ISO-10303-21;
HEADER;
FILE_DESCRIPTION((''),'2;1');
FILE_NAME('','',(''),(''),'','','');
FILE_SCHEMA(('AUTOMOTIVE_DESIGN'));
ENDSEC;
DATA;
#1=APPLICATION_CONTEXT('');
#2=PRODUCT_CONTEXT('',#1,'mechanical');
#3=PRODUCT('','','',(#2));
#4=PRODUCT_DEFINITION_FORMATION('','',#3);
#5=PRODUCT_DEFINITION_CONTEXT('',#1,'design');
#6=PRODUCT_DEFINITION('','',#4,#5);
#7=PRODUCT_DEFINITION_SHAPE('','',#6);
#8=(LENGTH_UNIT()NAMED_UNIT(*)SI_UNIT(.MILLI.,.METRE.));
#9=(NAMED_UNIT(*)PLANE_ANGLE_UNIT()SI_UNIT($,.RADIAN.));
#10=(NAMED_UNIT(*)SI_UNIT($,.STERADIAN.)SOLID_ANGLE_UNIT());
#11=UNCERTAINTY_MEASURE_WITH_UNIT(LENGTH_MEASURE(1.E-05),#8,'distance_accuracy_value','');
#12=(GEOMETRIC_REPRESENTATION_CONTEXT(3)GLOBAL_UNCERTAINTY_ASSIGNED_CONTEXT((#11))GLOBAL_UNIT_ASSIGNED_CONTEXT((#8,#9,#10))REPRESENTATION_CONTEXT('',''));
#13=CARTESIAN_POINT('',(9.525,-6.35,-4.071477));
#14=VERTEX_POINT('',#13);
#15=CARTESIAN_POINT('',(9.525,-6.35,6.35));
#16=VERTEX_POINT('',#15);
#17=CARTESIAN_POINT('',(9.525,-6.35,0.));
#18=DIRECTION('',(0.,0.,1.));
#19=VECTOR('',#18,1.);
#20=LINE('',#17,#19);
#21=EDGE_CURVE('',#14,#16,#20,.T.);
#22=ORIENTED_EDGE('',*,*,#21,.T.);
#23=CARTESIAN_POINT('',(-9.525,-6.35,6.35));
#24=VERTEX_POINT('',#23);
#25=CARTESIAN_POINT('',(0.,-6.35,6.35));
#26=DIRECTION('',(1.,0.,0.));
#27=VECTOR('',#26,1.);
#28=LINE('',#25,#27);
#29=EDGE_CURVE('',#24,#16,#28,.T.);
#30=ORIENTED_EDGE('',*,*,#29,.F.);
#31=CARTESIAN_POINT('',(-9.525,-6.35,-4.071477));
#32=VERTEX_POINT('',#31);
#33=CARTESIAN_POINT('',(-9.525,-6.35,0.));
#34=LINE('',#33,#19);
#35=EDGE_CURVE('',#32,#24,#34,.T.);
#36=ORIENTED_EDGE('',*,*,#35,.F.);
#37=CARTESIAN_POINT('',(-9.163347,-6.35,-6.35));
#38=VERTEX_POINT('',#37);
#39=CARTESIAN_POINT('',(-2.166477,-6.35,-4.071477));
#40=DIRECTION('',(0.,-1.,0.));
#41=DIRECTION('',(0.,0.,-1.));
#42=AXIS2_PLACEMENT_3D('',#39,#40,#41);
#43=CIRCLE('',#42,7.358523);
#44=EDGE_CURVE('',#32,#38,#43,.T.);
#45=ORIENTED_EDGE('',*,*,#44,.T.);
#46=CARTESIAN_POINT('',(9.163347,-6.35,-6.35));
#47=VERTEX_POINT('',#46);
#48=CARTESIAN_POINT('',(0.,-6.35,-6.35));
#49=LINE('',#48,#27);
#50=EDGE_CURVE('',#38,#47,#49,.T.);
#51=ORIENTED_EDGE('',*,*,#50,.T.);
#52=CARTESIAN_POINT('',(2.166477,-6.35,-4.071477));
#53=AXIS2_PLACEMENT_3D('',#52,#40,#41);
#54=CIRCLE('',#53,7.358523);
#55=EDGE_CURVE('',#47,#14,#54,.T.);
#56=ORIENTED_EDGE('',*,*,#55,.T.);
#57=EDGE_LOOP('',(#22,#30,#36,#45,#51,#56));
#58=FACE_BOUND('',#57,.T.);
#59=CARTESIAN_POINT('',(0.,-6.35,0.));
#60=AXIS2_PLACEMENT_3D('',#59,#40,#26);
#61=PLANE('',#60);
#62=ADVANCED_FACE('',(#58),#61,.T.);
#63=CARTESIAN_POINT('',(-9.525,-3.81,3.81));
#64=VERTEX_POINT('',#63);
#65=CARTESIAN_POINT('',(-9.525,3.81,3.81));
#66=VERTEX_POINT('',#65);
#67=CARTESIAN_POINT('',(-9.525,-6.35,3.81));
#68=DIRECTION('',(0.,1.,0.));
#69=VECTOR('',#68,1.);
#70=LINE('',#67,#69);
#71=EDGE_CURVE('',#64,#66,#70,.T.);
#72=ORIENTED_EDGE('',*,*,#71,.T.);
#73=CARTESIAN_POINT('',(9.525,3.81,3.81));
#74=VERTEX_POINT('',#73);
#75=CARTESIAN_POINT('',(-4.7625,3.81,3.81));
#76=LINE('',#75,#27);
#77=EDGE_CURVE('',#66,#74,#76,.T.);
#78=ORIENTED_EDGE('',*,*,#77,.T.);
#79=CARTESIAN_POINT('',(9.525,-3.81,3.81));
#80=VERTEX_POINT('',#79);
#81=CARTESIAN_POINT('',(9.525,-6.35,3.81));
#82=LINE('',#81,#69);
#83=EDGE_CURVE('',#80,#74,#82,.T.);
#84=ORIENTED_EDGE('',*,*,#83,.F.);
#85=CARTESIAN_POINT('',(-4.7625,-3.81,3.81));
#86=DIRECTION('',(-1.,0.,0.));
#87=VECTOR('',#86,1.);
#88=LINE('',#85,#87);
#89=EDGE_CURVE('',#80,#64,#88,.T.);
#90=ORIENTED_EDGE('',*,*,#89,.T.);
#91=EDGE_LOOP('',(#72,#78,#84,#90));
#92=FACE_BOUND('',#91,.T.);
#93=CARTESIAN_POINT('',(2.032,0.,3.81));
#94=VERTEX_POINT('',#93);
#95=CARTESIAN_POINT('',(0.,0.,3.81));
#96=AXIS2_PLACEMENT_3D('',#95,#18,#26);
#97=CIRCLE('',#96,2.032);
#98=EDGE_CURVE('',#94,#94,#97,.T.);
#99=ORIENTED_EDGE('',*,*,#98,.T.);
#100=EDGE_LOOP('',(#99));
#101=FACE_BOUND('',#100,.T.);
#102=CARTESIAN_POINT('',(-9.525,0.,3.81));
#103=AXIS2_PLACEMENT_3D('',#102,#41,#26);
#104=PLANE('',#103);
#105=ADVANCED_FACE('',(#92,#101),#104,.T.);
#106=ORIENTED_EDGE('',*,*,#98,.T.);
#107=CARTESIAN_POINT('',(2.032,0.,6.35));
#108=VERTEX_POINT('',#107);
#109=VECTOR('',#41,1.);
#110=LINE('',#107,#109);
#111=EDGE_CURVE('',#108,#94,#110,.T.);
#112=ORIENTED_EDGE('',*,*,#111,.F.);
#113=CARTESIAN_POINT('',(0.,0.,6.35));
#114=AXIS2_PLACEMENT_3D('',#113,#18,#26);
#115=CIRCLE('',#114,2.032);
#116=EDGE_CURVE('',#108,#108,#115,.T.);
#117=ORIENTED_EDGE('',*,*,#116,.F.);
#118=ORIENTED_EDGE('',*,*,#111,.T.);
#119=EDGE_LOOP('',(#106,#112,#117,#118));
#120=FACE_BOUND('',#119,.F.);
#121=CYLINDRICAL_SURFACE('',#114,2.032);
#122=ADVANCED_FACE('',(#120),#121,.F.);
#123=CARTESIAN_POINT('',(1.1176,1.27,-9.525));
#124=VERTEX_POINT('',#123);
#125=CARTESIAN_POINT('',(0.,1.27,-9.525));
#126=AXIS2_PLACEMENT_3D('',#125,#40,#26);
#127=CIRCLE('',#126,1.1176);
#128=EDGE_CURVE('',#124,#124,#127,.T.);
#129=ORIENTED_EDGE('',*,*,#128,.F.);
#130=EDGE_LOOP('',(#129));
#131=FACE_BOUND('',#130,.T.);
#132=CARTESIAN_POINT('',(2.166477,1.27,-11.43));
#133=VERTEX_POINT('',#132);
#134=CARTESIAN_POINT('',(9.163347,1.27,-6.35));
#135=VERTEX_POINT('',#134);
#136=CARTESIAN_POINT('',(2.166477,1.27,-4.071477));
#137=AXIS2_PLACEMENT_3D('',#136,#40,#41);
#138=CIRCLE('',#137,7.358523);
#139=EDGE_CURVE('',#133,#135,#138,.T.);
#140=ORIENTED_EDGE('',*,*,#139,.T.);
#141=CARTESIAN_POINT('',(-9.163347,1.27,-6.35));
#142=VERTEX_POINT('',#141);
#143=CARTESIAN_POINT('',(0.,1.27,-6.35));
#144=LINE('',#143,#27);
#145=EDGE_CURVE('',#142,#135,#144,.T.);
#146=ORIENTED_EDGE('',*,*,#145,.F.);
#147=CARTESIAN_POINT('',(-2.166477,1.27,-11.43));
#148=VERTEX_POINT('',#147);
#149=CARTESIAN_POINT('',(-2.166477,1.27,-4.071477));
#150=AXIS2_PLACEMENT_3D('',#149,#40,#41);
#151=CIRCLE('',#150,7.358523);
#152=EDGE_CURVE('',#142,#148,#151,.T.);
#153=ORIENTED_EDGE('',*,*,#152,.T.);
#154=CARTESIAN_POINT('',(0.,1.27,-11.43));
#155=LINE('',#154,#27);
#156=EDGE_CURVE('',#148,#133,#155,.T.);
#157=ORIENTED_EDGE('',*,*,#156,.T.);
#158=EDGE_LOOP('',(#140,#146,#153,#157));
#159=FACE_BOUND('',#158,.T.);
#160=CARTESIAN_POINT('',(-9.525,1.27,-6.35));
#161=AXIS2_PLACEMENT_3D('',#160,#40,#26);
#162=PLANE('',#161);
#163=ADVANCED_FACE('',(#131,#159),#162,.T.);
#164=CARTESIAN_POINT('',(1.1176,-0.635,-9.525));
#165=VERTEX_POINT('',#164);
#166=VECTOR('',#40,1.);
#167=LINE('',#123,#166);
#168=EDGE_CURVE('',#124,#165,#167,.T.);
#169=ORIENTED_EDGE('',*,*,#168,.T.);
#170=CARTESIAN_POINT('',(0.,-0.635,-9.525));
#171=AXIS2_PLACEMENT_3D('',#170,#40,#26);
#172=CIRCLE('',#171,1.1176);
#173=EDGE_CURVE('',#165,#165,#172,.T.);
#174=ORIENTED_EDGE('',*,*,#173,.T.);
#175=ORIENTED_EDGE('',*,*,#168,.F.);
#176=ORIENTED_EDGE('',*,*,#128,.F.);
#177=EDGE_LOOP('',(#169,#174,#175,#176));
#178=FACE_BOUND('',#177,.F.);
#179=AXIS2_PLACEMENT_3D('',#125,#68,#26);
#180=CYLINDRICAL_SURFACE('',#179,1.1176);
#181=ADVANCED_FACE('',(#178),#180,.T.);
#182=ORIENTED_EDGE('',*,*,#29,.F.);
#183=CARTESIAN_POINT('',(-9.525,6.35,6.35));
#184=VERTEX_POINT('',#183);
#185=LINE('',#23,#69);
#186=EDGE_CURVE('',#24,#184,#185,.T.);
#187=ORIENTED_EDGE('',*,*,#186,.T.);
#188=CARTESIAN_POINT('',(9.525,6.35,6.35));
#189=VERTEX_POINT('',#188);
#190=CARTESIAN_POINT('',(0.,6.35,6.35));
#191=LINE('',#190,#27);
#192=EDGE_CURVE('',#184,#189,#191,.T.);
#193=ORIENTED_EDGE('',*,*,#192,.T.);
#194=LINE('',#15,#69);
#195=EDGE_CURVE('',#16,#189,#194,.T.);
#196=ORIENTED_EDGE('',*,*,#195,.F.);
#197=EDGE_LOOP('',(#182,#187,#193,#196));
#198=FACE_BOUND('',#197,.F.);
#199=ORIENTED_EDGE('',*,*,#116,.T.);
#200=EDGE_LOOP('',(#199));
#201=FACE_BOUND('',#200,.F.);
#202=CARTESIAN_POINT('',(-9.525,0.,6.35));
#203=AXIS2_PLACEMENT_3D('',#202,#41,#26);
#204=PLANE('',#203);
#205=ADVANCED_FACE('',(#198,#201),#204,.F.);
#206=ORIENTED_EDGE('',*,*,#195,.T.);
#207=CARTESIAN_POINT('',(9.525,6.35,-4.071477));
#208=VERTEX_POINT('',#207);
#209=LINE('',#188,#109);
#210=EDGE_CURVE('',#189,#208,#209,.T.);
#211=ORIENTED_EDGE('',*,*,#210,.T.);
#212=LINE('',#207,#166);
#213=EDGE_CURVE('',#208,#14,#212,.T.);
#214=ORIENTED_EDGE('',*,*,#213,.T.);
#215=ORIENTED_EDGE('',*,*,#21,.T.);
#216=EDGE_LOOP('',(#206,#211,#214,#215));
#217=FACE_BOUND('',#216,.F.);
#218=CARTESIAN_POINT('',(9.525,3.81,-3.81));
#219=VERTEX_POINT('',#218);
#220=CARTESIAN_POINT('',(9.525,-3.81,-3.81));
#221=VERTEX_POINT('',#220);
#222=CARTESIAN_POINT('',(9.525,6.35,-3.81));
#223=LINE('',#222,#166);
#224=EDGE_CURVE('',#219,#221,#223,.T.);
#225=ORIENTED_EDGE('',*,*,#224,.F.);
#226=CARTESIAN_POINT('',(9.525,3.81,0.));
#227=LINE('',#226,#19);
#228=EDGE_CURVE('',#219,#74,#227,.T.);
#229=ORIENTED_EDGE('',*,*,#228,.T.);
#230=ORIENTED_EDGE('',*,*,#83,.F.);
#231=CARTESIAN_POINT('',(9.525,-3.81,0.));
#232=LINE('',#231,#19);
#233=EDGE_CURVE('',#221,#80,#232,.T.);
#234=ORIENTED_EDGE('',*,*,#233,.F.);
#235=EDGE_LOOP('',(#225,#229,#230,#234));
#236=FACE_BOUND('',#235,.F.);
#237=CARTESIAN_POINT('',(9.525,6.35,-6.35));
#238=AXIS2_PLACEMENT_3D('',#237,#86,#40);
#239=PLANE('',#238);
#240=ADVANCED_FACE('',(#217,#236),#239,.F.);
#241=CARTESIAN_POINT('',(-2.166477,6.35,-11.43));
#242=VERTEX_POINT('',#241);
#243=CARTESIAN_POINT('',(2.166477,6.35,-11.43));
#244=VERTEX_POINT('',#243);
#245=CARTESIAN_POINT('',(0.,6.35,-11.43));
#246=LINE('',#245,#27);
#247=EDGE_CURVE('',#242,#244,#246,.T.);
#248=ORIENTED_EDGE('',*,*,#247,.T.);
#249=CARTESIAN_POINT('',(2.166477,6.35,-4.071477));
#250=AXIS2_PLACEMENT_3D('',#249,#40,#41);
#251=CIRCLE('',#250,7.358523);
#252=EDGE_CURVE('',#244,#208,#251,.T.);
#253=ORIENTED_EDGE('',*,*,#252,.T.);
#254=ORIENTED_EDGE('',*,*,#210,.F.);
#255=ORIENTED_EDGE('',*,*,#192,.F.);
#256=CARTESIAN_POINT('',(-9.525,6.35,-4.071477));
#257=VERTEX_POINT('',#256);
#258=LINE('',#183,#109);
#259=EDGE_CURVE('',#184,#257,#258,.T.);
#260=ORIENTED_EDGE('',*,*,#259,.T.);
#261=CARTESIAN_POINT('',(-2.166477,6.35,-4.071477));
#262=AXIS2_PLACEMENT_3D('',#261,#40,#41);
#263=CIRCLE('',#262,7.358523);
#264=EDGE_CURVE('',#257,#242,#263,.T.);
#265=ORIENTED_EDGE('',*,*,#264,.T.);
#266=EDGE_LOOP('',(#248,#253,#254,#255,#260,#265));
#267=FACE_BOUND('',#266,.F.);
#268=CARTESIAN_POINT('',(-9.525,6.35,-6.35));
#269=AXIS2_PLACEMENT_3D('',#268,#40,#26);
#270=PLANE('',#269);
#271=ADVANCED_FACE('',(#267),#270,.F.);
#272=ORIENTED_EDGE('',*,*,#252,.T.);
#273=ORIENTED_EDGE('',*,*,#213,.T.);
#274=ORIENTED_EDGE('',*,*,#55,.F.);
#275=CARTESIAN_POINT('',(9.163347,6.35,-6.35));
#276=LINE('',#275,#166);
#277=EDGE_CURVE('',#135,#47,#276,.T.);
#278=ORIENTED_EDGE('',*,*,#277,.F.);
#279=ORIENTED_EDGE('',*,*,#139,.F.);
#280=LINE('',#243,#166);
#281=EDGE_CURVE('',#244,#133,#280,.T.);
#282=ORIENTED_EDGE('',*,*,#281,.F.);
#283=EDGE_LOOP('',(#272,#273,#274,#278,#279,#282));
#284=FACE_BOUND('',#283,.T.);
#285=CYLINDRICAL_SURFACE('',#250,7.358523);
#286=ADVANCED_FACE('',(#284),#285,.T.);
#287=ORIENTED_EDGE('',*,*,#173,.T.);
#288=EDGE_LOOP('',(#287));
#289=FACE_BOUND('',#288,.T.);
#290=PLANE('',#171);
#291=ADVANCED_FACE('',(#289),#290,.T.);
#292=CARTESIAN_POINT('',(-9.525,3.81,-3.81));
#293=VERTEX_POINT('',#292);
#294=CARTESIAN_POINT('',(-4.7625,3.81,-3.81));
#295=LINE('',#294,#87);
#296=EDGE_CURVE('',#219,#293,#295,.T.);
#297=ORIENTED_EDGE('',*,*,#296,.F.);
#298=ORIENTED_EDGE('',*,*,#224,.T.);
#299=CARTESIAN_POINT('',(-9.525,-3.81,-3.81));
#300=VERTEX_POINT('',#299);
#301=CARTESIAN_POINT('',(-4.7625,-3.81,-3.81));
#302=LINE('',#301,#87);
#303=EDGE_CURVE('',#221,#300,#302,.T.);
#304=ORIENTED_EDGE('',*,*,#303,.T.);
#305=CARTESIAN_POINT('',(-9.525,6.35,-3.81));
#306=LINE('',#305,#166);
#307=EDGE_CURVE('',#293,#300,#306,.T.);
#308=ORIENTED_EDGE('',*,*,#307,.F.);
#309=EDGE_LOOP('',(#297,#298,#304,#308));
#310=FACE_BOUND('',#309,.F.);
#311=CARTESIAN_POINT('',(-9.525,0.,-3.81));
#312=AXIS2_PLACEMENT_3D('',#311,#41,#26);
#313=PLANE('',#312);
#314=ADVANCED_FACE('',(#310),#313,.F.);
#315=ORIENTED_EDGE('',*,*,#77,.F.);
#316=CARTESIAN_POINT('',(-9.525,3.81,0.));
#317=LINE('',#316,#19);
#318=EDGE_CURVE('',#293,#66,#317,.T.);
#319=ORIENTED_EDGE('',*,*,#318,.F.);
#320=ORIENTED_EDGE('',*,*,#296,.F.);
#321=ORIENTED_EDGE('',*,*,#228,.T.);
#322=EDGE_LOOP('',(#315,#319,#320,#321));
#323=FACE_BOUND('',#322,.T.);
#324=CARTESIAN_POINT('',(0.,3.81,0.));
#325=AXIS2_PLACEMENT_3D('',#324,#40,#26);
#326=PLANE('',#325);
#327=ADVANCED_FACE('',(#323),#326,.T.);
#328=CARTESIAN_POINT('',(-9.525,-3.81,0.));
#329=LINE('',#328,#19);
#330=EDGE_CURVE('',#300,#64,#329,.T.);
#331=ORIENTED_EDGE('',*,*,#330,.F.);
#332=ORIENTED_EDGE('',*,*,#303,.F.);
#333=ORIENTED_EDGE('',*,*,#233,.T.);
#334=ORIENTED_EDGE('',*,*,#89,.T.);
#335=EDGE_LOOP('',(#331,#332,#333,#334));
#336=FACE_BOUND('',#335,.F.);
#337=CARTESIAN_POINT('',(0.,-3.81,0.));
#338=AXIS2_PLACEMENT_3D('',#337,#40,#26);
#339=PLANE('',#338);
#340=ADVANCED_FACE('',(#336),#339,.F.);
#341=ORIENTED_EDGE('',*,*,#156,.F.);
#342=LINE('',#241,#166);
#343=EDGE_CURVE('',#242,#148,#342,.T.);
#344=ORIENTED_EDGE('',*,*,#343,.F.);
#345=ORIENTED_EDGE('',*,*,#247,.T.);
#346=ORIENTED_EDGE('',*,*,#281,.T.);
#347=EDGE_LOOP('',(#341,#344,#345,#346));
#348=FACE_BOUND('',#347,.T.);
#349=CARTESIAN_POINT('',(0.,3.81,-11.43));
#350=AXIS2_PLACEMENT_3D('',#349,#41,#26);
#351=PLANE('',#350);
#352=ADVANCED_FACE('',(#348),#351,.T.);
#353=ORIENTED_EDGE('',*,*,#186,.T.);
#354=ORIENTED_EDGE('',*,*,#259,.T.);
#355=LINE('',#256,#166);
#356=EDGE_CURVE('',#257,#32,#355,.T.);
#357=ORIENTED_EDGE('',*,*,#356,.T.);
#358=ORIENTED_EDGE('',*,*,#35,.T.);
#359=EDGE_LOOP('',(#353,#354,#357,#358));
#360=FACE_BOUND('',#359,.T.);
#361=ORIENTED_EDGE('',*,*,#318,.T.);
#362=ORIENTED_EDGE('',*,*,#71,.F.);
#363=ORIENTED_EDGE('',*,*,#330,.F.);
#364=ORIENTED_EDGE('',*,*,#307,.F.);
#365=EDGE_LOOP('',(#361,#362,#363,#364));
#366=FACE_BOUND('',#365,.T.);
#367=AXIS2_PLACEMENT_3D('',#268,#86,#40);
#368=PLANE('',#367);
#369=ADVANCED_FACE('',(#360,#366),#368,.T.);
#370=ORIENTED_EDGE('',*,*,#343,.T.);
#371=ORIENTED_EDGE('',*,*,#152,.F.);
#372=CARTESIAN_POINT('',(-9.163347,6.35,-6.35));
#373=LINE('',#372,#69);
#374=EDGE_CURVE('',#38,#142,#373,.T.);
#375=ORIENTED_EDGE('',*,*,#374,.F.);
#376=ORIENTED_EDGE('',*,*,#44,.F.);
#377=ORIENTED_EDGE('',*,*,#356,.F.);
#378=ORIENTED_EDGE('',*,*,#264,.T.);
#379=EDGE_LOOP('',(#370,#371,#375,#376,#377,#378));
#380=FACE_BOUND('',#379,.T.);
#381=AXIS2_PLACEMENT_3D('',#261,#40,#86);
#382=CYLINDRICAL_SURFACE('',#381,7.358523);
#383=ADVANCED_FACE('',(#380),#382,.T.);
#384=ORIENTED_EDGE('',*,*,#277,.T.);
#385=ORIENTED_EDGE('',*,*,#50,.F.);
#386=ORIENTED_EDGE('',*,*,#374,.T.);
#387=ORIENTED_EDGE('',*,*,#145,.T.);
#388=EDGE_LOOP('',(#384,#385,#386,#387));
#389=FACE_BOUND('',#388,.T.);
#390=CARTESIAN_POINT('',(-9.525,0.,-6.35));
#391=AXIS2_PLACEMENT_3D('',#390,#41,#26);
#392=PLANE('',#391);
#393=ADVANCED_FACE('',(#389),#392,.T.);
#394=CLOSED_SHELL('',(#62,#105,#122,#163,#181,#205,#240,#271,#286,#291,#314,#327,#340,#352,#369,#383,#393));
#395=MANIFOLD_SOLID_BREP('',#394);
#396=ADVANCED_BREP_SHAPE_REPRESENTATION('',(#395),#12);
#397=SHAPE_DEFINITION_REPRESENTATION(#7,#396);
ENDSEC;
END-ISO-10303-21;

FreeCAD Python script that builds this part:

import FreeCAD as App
import Part
import Sketcher

V = App.Vector
Q = App.Units.Quantity


def edges_at(feature, points):
    """Names of the edges that pass closest to the given points."""
    edges = feature.Shape.Edges
    near = lambda p: min(range(len(edges)), key=lambda i: edges[i].distToShape(Part.Vertex(*p))[0])
    return sorted({f"Edge{near(p) + 1}" for p in points})


def faces_at(feature, points):
    """Names of the faces that lie closest to the given points."""
    faces = feature.Shape.Faces
    near = lambda p: min(range(len(faces)), key=lambda i: faces[i].distToShape(Part.Vertex(*p))[0])
    return sorted({f"Face{near(p) + 1}" for p in points})


def add_polygon(sketch, points):
    """Adds a closed chain of lines whose ends are joined by coincident constraints."""
    first, n = sketch.GeometryCount, len(points)
    for a, b in zip(points, points[1:] + points[:1]):
        sketch.addGeometry(Part.LineSegment(App.Vector(*a, 0), App.Vector(*b, 0)), False)
    for i in range(n):
        sketch.addConstraint(Sketcher.Constraint("Coincident", first + i, 2, first + (i + 1) % n, 1))

doc = App.newDocument("Part")
body = doc.addObject("PartDesign::Body", "Body")

# Sketch on XZ plane
sketch1 = body.newObject("Sketcher::SketchObject", "Sketch")
sketch1.AttachmentSupport = (doc.getObject("XZ_Plane"), [""])
sketch1.MapMode = "FlatFace"
add_polygon(sketch1, [(-9.525, 6.35), (-9.525, -6.35), (9.525, -6.35), (9.525, 6.35)])  # lines 0-3
sketch1.addConstraint([
    Sketcher.Constraint("Vertical", 0),
    Sketcher.Constraint("Horizontal", 1),
    Sketcher.Constraint("Vertical", 2),
    Sketcher.Constraint("Horizontal", 3),
    Sketcher.Constraint("Symmetric", 0, 2, 2, 2, -1, 1),
    Sketcher.Constraint("DistanceY", 0, 2, 0, 1, Q("0.5 in")),
    Sketcher.Constraint("DistanceX", 1, 1, 1, 2, Q("0.75 in")),
])
pad1 = body.newObject("PartDesign::Pad", "Pad")
pad1.Profile = sketch1
pad1.Length = Q("0.5 in")
pad1.Midplane = True
doc.recompute()

thickness = body.newObject("PartDesign::Thickness", "Thickness")
thickness.Base = (pad1, faces_at(pad1, [(9.525, 0, 0), (-9.525, 0, 0)]))
thickness.Value = Q("0.1 in")
thickness.Reversed = True
thickness.Join = "Arc"

# Sketch on XY plane
sketch2 = body.newObject("Sketcher::SketchObject", "Sketch001")
sketch2.AttachmentSupport = (doc.getObject("XY_Plane"), [""])
sketch2.MapMode = "FlatFace"
sketch2.AttachmentOffset = App.Placement(V(0, 0, 0.25 * 25.4), App.Rotation())
sketch2.addGeometry(Part.Circle(V(0, 0, 0), V(0, 0, 1), 2.032), False)
sketch2.addConstraint([
    Sketcher.Constraint("Coincident", 0, 3, -1, 1),
    Sketcher.Constraint("Diameter", 0, Q("0.16 in")),
])
pocket1 = body.newObject("PartDesign::Pocket", "Pocket")
pocket1.Profile = sketch2
pocket1.Length = Q("0.1 in")

# Sketch on XY plane
sketch3 = body.newObject("Sketcher::SketchObject", "Sketch002")
sketch3.AttachmentSupport = (doc.getObject("XY_Plane"), [""])
sketch3.MapMode = "FlatFace"
sketch3.AttachmentOffset = App.Placement(V(0, 0, -0.25 * 25.4), App.Rotation())
add_polygon(sketch3, [(-9.525, 1.27), (-9.525, 6.35), (9.525, 6.35), (9.525, 1.27)])  # lines 0-3
sketch3.addConstraint([
    Sketcher.Constraint("Vertical", 0),
    Sketcher.Constraint("Horizontal", 1),
    Sketcher.Constraint("Vertical", 2),
    Sketcher.Constraint("Horizontal", 3),
    Sketcher.Constraint("DistanceY", 0, 1, 0, 2, Q("0.2 in")),
    Sketcher.Constraint("DistanceX", 1, 1, 1, 2, Q("0.75 in")),
    Sketcher.Constraint("DistanceY", -1, 1, 0, 2, Q("0.25 in")),
    Sketcher.Constraint("DistanceX", 0, 2, -1, 1, Q("0.375 in")),
])
pad2 = body.newObject("PartDesign::Pad", "Pad001")
pad2.Profile = sketch3
pad2.Length = Q("0.2 in")
pad2.Reversed = True

# Sketch on XZ plane
sketch4 = body.newObject("Sketcher::SketchObject", "Sketch003")
sketch4.AttachmentSupport = (doc.getObject("XZ_Plane"), [""])
sketch4.MapMode = "FlatFace"
sketch4.AttachmentOffset = App.Placement(V(0, 0, -0.05 * 25.4), App.Rotation())
sketch4.addGeometry(Part.Circle(V(0, -9.525, 0), V(0, 0, 1), 1.1176), False)
sketch4.addConstraint([
    Sketcher.Constraint("PointOnObject", 0, 3, -2),
    Sketcher.Constraint("Diameter", 0, Q("0.088 in")),
    Sketcher.Constraint("DistanceY", 0, 3, -1, 1, Q("0.375 in")),
])
pad3 = body.newObject("PartDesign::Pad", "Pad002")
pad3.Profile = sketch4
pad3.Length = Q("0.075 in")
doc.recompute()

fillet = body.newObject("PartDesign::Fillet", "Fillet")
fillet.Base = (pad3, edges_at(pad3, [(9.525, 3.81, -11.43), (-9.525, 3.81, -11.43)]))
fillet.Radius = 7.358523

doc.recompute()
